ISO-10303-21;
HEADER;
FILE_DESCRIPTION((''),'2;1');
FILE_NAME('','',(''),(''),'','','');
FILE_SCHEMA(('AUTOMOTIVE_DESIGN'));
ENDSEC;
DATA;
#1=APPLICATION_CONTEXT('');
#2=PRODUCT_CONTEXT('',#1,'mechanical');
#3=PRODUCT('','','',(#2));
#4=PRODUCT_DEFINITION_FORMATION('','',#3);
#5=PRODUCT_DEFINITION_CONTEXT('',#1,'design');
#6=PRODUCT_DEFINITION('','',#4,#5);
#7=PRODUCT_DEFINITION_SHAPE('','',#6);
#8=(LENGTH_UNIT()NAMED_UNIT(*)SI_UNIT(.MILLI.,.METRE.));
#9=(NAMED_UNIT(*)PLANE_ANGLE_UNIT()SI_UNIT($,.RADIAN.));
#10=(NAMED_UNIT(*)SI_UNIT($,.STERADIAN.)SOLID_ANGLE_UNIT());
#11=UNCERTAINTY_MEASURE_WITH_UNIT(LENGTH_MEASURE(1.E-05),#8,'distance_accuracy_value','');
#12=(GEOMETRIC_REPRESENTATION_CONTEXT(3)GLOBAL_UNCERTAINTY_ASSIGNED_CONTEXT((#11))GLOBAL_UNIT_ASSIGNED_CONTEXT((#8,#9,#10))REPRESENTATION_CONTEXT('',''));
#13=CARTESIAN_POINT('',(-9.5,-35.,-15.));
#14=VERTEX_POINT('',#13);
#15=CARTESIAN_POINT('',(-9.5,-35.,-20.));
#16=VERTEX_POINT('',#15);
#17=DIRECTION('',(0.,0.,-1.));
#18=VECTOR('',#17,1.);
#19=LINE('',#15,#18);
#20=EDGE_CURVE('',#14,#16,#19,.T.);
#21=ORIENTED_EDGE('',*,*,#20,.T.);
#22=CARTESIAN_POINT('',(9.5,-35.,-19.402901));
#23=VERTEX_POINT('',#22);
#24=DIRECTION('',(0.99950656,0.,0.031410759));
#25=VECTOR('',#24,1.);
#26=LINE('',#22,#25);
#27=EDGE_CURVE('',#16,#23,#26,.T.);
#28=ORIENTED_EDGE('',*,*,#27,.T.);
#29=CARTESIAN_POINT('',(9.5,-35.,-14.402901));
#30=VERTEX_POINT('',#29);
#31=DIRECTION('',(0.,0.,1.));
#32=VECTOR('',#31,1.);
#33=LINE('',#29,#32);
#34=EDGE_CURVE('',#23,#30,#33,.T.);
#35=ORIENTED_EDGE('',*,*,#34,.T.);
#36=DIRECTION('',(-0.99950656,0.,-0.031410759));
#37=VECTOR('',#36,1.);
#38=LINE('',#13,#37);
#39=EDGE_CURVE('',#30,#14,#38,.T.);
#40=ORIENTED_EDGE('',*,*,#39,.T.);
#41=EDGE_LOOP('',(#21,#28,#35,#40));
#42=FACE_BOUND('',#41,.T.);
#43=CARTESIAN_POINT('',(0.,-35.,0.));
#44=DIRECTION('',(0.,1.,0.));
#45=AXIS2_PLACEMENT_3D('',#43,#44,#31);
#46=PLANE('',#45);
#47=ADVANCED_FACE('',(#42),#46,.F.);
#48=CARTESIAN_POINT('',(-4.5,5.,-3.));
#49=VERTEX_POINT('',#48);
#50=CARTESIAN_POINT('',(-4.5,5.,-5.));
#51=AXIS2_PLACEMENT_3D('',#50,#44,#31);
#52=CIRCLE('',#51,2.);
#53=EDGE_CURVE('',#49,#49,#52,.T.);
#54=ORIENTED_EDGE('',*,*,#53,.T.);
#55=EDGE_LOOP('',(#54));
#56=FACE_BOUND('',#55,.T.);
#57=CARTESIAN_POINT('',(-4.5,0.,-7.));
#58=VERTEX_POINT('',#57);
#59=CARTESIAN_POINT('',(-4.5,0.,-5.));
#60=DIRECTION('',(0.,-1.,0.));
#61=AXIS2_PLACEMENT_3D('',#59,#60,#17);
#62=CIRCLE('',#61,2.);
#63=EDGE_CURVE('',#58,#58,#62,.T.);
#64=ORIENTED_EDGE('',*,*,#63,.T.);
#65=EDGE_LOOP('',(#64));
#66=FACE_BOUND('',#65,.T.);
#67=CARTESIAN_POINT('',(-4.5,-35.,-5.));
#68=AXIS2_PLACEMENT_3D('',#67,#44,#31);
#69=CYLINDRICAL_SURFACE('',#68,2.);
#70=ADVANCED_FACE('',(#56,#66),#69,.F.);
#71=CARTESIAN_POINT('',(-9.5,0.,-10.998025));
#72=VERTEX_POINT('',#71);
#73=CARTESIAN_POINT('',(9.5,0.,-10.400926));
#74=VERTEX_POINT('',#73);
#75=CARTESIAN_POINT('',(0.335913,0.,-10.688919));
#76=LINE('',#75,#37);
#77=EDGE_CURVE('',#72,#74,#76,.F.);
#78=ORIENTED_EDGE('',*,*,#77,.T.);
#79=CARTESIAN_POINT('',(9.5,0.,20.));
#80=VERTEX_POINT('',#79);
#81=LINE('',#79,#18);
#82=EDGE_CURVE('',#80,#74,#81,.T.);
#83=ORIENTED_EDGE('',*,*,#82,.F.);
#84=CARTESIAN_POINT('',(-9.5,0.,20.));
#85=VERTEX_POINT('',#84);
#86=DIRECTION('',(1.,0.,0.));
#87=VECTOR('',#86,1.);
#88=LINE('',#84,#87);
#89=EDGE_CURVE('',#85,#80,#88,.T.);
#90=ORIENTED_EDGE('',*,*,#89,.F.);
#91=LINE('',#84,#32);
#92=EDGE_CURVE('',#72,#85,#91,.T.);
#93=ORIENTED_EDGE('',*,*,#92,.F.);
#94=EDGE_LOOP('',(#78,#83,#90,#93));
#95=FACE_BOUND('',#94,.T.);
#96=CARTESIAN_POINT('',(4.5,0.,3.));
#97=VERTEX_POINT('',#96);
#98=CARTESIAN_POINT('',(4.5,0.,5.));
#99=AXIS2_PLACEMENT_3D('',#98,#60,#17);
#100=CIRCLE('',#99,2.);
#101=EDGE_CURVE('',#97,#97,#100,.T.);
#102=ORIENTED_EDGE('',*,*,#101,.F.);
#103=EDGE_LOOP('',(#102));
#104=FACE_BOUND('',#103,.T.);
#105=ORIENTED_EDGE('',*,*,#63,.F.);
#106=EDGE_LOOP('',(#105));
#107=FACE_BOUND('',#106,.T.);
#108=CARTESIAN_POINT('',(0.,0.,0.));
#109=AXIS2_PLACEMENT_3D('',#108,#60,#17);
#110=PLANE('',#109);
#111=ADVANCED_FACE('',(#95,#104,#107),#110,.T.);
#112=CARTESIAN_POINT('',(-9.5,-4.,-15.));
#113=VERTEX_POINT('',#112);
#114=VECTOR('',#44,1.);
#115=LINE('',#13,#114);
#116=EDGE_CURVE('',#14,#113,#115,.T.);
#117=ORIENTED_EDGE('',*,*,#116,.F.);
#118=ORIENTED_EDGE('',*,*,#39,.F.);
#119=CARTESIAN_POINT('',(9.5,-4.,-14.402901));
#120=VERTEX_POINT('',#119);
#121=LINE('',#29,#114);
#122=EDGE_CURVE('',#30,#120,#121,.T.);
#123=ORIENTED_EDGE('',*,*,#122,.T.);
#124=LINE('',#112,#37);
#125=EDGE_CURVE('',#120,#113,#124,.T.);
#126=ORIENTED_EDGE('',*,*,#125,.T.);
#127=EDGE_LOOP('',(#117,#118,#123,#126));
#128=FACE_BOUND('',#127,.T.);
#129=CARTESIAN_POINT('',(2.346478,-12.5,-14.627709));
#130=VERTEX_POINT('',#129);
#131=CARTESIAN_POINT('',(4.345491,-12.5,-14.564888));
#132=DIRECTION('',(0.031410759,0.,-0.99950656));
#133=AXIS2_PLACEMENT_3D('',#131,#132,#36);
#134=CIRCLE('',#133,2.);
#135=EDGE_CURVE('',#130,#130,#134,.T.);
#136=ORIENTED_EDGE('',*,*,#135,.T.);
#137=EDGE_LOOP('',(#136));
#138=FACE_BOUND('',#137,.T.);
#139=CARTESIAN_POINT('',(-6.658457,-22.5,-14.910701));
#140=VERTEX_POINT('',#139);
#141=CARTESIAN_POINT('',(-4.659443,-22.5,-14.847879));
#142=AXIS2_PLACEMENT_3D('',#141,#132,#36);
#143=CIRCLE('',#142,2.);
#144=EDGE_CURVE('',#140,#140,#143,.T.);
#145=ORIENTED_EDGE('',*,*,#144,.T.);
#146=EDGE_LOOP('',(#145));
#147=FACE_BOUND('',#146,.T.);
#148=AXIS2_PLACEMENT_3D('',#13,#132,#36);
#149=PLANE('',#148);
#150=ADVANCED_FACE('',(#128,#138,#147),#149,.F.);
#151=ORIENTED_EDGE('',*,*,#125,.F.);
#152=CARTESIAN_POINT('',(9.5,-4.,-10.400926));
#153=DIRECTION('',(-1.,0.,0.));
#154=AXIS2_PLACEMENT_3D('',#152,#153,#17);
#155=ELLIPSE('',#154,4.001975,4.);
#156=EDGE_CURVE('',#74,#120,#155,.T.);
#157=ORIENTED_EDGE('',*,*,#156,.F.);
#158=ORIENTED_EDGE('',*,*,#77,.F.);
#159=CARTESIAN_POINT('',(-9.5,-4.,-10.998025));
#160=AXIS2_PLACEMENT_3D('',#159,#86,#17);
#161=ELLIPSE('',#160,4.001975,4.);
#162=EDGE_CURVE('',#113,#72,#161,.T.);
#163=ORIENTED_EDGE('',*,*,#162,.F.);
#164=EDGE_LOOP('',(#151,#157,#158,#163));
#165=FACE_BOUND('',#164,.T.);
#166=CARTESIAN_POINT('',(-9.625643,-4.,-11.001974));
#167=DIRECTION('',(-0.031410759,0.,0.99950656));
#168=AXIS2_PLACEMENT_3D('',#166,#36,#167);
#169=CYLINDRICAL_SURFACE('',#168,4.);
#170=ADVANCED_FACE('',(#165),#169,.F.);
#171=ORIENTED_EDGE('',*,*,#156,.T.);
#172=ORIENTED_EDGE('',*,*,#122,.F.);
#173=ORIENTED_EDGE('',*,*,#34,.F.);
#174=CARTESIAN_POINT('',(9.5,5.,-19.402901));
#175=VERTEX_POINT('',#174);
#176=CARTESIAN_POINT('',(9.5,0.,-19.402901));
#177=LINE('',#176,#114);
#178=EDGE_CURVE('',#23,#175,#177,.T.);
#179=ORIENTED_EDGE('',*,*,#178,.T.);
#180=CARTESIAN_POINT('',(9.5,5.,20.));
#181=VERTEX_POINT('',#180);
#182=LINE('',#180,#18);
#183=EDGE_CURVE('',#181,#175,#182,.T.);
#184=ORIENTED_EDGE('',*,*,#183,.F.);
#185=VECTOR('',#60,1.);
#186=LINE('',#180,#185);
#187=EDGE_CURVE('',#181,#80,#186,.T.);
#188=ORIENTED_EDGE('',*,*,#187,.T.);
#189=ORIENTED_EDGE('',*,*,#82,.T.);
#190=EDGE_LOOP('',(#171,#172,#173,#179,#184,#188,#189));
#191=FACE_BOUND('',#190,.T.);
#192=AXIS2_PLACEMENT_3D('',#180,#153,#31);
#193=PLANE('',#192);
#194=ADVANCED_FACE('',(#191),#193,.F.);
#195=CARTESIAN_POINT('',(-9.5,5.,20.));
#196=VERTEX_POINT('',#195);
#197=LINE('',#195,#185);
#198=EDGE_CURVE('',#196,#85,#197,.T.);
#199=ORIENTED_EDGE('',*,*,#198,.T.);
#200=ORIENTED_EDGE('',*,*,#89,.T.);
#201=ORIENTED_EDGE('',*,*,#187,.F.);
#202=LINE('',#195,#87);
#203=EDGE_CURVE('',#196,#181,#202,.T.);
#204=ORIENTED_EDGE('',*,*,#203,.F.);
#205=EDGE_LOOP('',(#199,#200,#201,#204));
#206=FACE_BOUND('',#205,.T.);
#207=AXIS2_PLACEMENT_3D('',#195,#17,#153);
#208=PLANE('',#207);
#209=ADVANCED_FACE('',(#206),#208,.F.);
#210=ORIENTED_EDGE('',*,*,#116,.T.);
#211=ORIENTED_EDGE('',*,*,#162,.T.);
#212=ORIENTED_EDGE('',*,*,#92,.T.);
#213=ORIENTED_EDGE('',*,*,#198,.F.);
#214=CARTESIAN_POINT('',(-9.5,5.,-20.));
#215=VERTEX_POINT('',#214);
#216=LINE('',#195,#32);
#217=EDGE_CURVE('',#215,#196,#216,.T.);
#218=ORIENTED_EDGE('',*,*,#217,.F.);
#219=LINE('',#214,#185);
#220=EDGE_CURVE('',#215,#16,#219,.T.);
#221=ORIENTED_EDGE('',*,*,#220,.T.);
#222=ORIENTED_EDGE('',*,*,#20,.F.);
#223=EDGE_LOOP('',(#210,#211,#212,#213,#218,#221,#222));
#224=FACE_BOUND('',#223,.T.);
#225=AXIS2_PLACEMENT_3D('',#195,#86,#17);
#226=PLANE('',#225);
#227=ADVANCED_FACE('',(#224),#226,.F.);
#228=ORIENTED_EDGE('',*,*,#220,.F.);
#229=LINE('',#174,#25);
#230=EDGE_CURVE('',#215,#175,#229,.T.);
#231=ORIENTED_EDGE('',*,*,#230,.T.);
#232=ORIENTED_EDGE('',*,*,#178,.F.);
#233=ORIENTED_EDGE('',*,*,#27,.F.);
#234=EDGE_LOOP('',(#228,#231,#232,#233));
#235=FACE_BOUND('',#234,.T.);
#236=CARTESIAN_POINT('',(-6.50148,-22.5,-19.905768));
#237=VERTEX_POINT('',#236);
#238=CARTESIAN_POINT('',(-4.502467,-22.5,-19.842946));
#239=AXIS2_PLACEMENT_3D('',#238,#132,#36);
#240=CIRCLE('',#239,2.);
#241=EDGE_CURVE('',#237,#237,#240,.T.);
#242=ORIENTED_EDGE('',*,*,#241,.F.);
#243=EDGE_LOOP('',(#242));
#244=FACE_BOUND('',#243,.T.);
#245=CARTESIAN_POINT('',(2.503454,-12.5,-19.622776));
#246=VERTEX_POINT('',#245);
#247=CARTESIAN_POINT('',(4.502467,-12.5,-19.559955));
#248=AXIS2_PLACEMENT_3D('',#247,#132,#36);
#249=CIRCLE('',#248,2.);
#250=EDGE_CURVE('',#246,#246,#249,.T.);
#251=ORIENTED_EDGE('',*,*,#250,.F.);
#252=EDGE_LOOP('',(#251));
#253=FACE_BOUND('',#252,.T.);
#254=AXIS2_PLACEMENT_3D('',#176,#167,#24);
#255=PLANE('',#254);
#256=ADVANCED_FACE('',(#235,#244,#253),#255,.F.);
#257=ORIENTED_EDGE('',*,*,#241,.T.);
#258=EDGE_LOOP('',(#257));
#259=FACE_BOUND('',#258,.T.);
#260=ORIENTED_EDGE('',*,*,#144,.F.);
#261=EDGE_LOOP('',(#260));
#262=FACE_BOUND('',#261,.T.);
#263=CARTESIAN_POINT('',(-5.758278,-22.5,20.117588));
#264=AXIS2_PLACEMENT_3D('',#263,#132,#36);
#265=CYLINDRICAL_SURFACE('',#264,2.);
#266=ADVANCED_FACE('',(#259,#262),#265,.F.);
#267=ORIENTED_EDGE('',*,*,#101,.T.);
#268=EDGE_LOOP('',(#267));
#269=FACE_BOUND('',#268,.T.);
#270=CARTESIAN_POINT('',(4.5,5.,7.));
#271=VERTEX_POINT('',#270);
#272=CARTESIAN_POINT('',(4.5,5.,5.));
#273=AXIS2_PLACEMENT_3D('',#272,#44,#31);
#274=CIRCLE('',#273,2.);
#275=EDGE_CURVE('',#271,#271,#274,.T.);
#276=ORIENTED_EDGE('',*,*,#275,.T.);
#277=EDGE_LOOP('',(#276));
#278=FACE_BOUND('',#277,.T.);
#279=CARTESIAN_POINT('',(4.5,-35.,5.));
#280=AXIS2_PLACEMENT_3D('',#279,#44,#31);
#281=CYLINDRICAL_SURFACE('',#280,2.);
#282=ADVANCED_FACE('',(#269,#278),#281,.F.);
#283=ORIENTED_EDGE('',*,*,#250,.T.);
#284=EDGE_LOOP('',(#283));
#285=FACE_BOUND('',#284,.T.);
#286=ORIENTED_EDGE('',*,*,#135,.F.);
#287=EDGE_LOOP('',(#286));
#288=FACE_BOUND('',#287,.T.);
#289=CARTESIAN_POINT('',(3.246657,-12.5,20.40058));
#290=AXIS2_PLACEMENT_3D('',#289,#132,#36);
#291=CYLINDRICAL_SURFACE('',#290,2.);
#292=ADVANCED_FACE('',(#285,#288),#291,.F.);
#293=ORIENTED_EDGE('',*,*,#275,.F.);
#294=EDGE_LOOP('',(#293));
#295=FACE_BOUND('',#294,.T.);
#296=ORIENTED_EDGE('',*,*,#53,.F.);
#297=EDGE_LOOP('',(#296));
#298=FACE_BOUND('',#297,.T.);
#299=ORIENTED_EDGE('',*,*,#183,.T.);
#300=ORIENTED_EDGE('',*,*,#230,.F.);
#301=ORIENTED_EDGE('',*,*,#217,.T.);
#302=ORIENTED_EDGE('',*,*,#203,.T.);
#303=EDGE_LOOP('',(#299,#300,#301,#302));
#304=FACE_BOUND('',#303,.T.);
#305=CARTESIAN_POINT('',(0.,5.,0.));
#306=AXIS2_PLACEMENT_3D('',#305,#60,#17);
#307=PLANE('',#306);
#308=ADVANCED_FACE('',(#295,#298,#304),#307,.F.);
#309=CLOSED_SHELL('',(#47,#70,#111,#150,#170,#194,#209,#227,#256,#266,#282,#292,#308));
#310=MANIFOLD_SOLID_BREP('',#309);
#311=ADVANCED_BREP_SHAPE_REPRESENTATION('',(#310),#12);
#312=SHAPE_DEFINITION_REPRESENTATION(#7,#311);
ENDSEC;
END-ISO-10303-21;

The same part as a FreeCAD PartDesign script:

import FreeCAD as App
import Part
import Sketcher
from FreeCAD import Vector
Q = App.Units.Quantity


def edges_at(feature, points):
    """Names of the edges that pass closest to the given points."""
    edges = feature.Shape.Edges
    near = lambda p: min(range(len(edges)), key=lambda i: edges[i].distToShape(Part.Vertex(*p))[0])
    return sorted({f"Edge{near(p) + 1}" for p in points})


def add_polygon(sketch, points):
    """Adds a closed chain of lines whose ends are joined by coincident constraints."""
    first, n = sketch.GeometryCount, len(points)
    for a, b in zip(points, points[1:] + points[:1]):
        sketch.addGeometry(Part.LineSegment(App.Vector(*a, 0), App.Vector(*b, 0)), False)
    for i in range(n):
        sketch.addConstraint(Sketcher.Constraint("Coincident", first + i, 2, first + (i + 1) % n, 1))

doc = App.newDocument("Part")
body = doc.addObject("PartDesign::Body", "Body")

# Sketch on XZ plane
sketch1 = body.newObject("Sketcher::SketchObject", "Sketch")
sketch1.AttachmentSupport = (doc.getObject("XZ_Plane"), [""])
sketch1.MapMode = "FlatFace"
add_polygon(sketch1, [(-10, -20), (-10, 20), (10, 20), (10, -20)])  # lines 0-3
sketch1.addConstraint([
    Sketcher.Constraint("Vertical", 0),
    Sketcher.Constraint("Horizontal", 1),
    Sketcher.Constraint("Vertical", 2),
    Sketcher.Constraint("Horizontal", 3),
    Sketcher.Constraint("Symmetric", 0, 2, 2, 2, -1, 1),
    Sketcher.Constraint("DistanceX", 1, 1, 1, 2, Q("19 mm")),
    Sketcher.Constraint("DistanceY", 0, 1, 0, 2, Q("40 mm")),
])
pad1 = body.newObject("PartDesign::Pad", "Pad")
pad1.Profile = sketch1
pad1.Length = 5
pad1.Reversed = True

# Sketch on XZ plane
sketch2 = body.newObject("Sketcher::SketchObject", "Sketch001")
sketch2.AttachmentSupport = (doc.getObject("XZ_Plane"), [""])
sketch2.MapMode = "FlatFace"
sketch2.AttachmentOffset = App.Placement(Vector(0, 0, -5), App.Rotation())
add_polygon(sketch2, [(9.5, -20), (-9.5, -20), (9.5, -19.4)])  # lines 0-2
sketch2.addConstraint([
    Sketcher.Constraint("Horizontal", 0),
    Sketcher.Constraint("Vertical", 2),
    Sketcher.Constraint("DistanceX", 0, 2, 0, 1, Q("19 mm")),
    Sketcher.Constraint("DistanceY", 0, 2, -1, 1, Q("20 mm")),
    Sketcher.Constraint("Angle", 1, Q("1.8 deg")),
    Sketcher.Constraint("DistanceX", 0, 2, -1, 1, Q("9.5 mm")),
])
pocket1 = body.newObject("PartDesign::Pocket", "Pocket")
pocket1.Profile = sketch2
pocket1.Type = "ThroughAll"
pocket1.Reversed = True

# Sketch on XZ plane
sketch3 = body.newObject("Sketcher::SketchObject", "Sketch002")
sketch3.AttachmentSupport = (doc.getObject("XZ_Plane"), [""])
sketch3.MapMode = "FlatFace"
add_polygon(sketch3, [(-9.5, -20), (9.5, -19.4), (9.5, -14.4), (-9.5, -15)])  # lines 0-3
sketch3.addConstraint([
    Sketcher.Constraint("Vertical", 1),
    Sketcher.Constraint("Vertical", 3),
    Sketcher.Constraint("Parallel", 0, 2),
    Sketcher.Constraint("DistanceY", 1, 1, 1, 2, Q("5 mm")),
    Sketcher.Constraint("DistanceY", 2, 2, -1, 1, Q("15 mm")),
    Sketcher.Constraint("Angle", 0, Q("1.8 deg")),
    Sketcher.Constraint("DistanceX", 2, 2, 1, 2, Q("19 mm")),
    Sketcher.Constraint("DistanceX", -1, 1, 0, 2, Q("9.5 mm")),
])
pad2 = body.newObject("PartDesign::Pad", "Pad001")
pad2.Profile = sketch3
pad2.Length = 35

# Sketch on XZ plane
sketch4 = body.newObject("Sketcher::SketchObject", "Sketch003")
sketch4.AttachmentSupport = (doc.getObject("XZ_Plane"), [""])
sketch4.MapMode = "FlatFace"
sketch4.AttachmentOffset = App.Placement(Vector(0, 0, -5), App.Rotation())
sketch4.addGeometry([
    Part.Circle(Vector(-4.5, -5, 0), Vector(0, 0, 1), 2),
    Part.Circle(Vector(4.5, 5, 0), Vector(0, 0, 1), 2),
], False)
sketch4.addConstraint([
    Sketcher.Constraint("Equal", 0, 1),
    Sketcher.Constraint("Symmetric", 0, 3, 1, 3, -1, 1),
    Sketcher.Constraint("Diameter", 0, Q("4 mm")),
    Sketcher.Constraint("DistanceY", 0, 3, -1, 1, Q("5 mm")),
    Sketcher.Constraint("DistanceX", 0, 3, 1, 3, Q("9 mm")),
])
pocket2 = body.newObject("PartDesign::Pocket", "Pocket001")
pocket2.Profile = sketch4
pocket2.Type = "ThroughAll"
pocket2.Reversed = True

# Sketch on an angled plane
sketch5 = body.newObject("Sketcher::SketchObject", "Sketch004")
sketch5.Placement = App.Placement(Vector(0.618532, 0, -19.682012), App.Rotation(Vector(-0.99950656, 0, -0.031410759), Vector(0, 0.999999999, 0), Vector(0.031410759, 0, -0.99950656), "ZXY"))
sketch5.addGeometry([
    Part.Circle(Vector(-3.9, -12.5, 0), Vector(0, 0, 1), 2),
    Part.Circle(Vector(5.1, -22.5, 0), Vector(0, 0, 1), 2),
], False)
sketch5.addConstraint([
    Sketcher.Constraint("Equal", 0, 1),
    Sketcher.Constraint("Diameter", 0, Q("4 mm")),
    Sketcher.Constraint("DistanceY", 1, 3, 0, 3, Q("10 mm")),
    Sketcher.Constraint("DistanceY", 0, 3, -1, 1, Q("12.5 mm")),
    Sketcher.Constraint("DistanceX", 0, 3, 1, 3, Q("9.00938 mm")),
    Sketcher.Constraint("DistanceX", 0, 3, -1, 1, Q("3.885852 mm")),
])
pocket3 = body.newObject("PartDesign::Pocket", "Pocket002")
pocket3.Profile = sketch5
pocket3.Type = "ThroughAll"
doc.recompute()

fillet = body.newObject("PartDesign::Fillet", "Fillet")
fillet.Base = (pocket3, edges_at(pocket3, [(0, 0, -14.701)]))
fillet.Radius = 4

doc.recompute()
